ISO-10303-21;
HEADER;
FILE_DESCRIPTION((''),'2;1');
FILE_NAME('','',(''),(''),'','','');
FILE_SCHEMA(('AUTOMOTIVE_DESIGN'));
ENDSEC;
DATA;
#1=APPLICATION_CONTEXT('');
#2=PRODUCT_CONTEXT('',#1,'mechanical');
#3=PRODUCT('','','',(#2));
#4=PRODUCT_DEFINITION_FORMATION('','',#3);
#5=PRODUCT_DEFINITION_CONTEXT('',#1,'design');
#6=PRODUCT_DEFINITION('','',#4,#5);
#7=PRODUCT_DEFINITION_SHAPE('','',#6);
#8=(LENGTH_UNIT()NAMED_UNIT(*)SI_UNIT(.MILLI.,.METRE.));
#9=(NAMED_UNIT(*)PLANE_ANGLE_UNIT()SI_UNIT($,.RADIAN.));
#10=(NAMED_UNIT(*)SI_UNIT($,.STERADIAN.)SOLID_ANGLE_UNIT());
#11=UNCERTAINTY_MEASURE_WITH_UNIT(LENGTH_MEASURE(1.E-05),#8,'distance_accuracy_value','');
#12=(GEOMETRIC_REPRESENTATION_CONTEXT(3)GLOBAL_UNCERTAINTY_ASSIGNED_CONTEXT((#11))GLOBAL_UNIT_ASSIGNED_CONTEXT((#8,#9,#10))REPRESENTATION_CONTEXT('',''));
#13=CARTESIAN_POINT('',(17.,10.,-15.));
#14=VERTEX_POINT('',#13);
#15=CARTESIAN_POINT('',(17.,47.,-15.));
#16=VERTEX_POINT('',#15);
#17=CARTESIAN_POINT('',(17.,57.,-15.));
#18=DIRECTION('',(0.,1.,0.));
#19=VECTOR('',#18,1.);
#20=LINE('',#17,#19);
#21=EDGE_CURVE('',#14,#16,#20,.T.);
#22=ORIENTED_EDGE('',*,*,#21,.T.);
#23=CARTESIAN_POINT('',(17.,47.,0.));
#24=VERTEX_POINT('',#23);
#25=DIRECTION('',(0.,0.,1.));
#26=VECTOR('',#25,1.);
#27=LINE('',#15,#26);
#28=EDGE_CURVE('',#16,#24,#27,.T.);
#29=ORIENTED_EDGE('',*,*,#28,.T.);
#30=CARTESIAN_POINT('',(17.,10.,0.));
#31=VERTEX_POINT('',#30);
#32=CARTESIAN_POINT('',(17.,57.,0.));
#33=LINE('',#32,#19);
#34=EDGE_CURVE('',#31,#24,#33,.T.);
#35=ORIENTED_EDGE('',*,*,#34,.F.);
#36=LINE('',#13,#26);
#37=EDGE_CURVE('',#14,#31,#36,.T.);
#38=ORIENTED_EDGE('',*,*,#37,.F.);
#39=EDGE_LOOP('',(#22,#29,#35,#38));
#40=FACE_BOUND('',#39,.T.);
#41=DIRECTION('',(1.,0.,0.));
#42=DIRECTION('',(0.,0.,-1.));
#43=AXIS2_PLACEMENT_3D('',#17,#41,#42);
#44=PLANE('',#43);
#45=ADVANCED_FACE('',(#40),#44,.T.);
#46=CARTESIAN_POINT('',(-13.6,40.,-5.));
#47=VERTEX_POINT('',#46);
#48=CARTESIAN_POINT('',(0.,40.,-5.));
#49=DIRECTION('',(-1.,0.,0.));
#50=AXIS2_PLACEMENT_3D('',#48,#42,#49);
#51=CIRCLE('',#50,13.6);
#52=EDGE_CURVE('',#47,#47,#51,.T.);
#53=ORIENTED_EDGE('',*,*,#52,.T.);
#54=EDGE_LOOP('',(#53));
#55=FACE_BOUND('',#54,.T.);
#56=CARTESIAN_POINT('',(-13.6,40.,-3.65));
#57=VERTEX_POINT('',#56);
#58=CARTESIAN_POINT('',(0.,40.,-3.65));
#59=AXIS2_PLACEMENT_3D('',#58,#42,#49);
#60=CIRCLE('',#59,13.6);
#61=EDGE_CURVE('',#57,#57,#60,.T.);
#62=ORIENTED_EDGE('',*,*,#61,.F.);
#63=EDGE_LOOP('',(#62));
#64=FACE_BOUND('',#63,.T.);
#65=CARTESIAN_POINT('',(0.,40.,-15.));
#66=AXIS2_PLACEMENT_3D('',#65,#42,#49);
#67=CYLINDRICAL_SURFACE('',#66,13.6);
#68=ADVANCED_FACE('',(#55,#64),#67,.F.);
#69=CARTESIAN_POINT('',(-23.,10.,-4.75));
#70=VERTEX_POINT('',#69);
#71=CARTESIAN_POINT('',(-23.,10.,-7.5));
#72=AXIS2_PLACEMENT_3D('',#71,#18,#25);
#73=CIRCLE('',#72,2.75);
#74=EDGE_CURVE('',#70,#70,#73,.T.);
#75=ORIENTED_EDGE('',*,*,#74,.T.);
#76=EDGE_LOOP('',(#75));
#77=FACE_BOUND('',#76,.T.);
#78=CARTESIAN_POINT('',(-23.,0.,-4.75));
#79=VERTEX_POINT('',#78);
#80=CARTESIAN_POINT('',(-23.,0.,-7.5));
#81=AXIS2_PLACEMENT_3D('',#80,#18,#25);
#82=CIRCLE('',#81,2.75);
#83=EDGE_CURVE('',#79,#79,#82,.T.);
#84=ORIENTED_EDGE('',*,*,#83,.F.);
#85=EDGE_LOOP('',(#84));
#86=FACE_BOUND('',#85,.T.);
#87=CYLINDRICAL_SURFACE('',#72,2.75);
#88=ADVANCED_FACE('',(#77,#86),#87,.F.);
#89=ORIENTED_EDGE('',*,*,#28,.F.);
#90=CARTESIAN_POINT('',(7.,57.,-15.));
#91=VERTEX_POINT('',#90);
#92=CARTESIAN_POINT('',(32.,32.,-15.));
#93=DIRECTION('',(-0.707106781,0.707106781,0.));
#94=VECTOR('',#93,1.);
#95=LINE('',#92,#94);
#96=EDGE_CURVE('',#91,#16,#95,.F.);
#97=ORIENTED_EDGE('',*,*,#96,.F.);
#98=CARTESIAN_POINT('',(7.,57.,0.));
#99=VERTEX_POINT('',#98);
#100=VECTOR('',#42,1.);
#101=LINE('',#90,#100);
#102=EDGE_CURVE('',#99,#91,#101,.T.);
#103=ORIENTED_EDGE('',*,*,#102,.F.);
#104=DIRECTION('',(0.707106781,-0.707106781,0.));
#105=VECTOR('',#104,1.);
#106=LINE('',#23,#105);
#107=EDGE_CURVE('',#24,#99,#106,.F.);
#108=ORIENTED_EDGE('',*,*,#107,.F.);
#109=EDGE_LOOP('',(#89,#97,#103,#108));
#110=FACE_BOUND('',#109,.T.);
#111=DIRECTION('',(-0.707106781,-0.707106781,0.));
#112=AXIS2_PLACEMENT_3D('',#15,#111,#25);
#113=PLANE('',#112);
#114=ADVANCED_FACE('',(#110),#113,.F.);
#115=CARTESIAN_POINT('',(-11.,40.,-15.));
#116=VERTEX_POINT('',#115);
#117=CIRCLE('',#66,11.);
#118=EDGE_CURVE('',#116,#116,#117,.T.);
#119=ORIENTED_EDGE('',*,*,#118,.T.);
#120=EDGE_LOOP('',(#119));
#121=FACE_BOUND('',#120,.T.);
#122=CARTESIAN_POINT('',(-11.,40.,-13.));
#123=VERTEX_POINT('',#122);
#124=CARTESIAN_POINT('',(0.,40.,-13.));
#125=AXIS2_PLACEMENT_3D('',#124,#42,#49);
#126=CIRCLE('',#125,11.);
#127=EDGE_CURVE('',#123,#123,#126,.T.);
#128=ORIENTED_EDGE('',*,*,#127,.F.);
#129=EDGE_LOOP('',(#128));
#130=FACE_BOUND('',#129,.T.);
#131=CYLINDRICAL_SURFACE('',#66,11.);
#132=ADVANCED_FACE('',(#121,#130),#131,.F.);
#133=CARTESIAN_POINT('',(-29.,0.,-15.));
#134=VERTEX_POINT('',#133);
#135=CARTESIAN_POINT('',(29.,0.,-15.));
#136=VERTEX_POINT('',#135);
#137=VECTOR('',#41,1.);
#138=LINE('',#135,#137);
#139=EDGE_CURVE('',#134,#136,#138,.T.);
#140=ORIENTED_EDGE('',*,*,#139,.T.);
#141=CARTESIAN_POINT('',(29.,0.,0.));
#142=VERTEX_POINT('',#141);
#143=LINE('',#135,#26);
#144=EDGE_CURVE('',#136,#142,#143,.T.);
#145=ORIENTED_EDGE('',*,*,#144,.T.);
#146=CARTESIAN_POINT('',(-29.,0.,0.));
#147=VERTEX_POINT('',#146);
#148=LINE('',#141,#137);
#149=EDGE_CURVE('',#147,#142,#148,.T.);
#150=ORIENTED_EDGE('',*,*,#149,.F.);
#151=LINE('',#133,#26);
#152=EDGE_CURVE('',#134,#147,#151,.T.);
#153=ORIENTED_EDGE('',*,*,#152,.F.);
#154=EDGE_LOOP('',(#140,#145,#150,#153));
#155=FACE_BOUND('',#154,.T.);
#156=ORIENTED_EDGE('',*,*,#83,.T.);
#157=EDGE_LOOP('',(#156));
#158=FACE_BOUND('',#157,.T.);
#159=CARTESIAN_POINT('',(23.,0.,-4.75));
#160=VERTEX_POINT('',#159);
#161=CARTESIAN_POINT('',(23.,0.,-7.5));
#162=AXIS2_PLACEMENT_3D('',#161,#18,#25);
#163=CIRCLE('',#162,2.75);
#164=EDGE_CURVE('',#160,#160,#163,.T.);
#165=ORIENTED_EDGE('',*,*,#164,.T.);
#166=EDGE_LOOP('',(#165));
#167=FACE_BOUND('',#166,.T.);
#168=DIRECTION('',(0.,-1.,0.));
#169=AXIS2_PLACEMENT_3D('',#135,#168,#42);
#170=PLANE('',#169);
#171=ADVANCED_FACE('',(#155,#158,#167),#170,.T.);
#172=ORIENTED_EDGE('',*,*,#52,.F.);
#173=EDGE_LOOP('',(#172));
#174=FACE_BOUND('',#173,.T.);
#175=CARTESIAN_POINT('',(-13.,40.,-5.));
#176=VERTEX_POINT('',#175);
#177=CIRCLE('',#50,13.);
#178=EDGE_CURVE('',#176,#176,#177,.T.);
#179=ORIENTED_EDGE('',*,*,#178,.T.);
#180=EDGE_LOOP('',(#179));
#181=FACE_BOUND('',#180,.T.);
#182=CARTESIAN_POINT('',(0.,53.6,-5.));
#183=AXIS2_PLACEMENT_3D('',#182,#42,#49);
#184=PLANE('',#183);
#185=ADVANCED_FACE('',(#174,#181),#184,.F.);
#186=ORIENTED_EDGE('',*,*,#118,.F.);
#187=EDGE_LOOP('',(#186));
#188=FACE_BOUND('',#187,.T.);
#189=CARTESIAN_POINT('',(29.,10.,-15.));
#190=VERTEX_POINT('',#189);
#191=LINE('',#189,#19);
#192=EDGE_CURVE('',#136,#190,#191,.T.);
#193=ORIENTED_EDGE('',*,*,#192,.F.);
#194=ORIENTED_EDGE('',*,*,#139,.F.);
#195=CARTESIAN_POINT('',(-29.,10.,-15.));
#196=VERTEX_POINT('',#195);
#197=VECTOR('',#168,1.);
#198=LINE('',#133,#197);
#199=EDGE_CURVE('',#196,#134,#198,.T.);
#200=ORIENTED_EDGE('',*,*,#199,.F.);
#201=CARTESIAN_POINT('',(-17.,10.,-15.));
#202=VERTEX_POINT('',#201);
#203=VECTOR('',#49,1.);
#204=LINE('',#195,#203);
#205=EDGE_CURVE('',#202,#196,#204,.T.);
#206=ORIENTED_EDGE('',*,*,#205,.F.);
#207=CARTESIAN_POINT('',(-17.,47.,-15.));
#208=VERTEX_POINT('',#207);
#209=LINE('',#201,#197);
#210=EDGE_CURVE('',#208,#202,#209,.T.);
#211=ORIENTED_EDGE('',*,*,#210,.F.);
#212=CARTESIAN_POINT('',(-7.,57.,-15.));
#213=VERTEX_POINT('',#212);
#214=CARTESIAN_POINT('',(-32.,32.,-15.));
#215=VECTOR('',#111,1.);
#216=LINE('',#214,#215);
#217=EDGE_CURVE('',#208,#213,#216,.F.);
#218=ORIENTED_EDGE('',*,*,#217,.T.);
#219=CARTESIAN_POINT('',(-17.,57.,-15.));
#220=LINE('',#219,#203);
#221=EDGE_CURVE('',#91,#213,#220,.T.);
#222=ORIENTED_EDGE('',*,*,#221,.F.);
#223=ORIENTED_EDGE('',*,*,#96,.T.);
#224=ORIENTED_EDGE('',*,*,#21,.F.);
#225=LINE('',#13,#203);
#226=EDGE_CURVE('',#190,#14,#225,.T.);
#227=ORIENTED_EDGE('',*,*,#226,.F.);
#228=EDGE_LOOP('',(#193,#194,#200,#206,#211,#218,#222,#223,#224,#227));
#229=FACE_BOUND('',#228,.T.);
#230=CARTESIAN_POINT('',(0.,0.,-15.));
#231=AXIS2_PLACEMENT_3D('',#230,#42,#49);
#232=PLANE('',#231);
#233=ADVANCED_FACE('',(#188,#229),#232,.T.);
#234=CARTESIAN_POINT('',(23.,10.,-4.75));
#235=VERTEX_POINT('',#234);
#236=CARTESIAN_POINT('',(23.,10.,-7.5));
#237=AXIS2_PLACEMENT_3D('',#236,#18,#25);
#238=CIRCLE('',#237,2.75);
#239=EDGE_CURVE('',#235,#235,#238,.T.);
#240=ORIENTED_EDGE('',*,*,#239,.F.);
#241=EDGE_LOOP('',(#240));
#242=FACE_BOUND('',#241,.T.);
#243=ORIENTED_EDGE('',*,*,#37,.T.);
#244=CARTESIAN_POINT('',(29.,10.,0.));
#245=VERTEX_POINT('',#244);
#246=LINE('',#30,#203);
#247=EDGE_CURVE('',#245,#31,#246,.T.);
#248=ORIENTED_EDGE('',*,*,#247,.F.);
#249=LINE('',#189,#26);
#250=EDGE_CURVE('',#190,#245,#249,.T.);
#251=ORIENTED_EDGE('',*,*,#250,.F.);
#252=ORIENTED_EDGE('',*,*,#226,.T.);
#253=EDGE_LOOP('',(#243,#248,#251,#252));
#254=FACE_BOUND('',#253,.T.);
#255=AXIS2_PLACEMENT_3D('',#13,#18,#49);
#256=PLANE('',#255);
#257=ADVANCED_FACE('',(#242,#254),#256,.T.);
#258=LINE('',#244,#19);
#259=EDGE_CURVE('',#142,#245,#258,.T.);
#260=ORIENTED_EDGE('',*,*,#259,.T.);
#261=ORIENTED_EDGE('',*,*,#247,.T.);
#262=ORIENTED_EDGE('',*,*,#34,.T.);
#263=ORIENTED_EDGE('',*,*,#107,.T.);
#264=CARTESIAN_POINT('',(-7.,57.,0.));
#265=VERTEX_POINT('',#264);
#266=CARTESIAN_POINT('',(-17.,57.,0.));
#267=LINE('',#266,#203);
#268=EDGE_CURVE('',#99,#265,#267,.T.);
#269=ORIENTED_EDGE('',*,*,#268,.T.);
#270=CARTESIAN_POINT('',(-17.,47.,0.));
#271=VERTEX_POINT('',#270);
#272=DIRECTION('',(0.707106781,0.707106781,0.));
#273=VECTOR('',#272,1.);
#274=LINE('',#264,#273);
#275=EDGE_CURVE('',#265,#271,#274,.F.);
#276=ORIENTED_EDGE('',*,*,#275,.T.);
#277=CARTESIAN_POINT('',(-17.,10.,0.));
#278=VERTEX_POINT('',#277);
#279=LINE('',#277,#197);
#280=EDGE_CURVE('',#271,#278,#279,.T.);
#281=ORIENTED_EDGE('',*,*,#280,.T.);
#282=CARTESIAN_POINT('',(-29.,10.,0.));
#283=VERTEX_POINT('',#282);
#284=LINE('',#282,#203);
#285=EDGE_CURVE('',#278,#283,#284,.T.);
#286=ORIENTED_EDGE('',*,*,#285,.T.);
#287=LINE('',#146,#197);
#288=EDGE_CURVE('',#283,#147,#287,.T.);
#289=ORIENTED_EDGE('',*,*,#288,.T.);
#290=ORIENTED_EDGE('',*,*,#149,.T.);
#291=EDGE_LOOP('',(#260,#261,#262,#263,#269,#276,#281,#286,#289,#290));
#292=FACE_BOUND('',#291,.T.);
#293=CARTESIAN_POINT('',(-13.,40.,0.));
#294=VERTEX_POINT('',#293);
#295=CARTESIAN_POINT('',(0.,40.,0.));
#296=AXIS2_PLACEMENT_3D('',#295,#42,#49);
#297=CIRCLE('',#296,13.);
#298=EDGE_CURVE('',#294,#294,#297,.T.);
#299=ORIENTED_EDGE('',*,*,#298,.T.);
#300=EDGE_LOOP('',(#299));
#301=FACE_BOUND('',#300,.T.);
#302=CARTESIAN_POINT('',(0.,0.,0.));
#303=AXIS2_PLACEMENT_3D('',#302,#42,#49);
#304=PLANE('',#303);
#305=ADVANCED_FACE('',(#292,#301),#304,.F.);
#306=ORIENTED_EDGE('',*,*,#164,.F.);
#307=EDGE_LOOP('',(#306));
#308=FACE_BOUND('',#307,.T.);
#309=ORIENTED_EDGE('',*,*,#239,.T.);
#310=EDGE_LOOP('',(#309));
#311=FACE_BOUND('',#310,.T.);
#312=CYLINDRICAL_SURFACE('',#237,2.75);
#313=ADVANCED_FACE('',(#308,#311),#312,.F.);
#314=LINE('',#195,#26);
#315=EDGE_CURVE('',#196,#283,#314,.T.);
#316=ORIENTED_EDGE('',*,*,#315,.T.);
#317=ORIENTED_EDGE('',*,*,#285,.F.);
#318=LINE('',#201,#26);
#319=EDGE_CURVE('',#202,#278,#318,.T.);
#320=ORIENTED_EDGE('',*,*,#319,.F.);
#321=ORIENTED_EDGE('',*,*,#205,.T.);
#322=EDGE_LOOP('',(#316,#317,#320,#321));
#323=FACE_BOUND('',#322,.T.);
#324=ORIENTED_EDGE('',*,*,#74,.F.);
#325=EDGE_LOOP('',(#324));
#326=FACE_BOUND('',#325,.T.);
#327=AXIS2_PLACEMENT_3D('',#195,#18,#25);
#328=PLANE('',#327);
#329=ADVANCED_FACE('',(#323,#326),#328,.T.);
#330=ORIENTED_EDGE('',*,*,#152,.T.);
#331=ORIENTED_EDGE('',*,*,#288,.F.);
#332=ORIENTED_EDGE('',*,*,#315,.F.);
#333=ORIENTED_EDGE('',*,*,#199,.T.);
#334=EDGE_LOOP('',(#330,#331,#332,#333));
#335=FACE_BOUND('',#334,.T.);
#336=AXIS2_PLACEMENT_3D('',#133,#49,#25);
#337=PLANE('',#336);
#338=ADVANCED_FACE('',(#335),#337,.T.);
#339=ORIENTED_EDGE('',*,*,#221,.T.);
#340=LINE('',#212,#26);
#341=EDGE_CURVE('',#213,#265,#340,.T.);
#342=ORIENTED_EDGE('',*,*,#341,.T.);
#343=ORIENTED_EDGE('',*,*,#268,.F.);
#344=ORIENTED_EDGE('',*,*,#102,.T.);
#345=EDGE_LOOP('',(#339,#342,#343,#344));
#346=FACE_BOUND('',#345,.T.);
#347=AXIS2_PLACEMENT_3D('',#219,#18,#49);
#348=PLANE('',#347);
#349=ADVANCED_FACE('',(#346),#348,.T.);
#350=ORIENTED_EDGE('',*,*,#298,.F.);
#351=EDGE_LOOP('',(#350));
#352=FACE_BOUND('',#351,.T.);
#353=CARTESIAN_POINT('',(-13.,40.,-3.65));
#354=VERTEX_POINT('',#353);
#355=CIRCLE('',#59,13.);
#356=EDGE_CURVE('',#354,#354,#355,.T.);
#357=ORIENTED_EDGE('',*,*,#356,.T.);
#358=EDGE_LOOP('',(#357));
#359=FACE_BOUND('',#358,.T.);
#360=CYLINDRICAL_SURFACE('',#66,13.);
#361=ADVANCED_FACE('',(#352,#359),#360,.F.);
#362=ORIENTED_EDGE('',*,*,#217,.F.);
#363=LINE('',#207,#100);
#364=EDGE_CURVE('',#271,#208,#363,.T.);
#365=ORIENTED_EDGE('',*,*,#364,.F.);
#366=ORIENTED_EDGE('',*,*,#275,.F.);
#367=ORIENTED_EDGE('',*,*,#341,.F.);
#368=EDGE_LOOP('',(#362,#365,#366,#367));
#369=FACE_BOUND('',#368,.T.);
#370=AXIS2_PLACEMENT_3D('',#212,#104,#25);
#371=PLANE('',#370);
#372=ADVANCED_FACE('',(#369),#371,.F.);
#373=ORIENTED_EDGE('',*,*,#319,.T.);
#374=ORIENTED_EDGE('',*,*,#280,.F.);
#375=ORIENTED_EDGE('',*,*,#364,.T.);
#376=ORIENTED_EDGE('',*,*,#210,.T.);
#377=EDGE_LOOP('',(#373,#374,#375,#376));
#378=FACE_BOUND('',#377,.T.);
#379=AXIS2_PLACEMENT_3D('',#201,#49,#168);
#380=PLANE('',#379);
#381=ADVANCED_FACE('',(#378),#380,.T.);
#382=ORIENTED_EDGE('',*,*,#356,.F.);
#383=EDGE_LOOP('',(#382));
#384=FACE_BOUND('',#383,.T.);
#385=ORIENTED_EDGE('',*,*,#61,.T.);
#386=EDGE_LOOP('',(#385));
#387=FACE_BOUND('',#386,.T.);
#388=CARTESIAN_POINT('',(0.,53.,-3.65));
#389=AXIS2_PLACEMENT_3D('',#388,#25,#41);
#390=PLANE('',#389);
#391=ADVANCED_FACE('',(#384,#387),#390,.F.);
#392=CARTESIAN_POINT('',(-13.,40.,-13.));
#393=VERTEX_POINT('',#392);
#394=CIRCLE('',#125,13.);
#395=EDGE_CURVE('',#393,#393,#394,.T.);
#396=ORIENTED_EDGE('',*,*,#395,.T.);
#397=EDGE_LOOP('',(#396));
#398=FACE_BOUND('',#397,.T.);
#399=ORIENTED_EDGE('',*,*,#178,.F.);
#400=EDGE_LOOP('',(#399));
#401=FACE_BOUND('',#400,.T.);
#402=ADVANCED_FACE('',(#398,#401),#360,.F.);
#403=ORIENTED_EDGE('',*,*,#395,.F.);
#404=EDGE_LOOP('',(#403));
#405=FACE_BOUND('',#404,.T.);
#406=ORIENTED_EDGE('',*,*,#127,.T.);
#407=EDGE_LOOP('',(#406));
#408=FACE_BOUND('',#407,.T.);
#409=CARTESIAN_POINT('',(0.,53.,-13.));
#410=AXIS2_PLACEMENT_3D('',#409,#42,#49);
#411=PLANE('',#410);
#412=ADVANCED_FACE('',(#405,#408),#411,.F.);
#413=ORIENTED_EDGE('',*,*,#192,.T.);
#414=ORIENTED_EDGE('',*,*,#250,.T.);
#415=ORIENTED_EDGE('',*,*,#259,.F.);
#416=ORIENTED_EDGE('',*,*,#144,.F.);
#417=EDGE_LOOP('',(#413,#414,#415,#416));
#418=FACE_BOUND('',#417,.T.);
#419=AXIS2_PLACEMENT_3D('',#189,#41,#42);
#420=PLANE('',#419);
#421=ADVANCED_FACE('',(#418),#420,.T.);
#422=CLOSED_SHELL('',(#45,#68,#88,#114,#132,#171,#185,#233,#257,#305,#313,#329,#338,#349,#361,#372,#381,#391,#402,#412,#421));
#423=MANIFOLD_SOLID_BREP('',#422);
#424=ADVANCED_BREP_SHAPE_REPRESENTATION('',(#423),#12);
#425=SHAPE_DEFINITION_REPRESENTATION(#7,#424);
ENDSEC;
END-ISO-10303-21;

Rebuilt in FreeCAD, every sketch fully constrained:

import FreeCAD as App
import Part
import Sketcher
from FreeCAD import Vector
Q = App.Units.Quantity


def edges_at(feature, points):
    """Names of the edges that pass closest to the given points."""
    edges = feature.Shape.Edges
    near = lambda p: min(range(len(edges)), key=lambda i: edges[i].distToShape(Part.Vertex(*p))[0])
    return sorted({f"Edge{near(p) + 1}" for p in points})


def add_polygon(sketch, points):
    """Adds a closed chain of lines whose ends are joined by coincident constraints."""
    first, n = sketch.GeometryCount, len(points)
    for a, b in zip(points, points[1:] + points[:1]):
        sketch.addGeometry(Part.LineSegment(App.Vector(*a, 0), App.Vector(*b, 0)), False)
    for i in range(n):
        sketch.addConstraint(Sketcher.Constraint("Coincident", first + i, 2, first + (i + 1) % n, 1))

doc = App.newDocument("Part")
body = doc.addObject("PartDesign::Body", "Body")

# Sketch on XY plane
sketch1 = body.newObject("Sketcher::SketchObject", "Sketch")
sketch1.AttachmentSupport = (doc.getObject("XY_Plane"), [""])
sketch1.MapMode = "FlatFace"
add_polygon(sketch1, [(17, 57), (-17, 57), (-17, 10), (-29, 10), (-29, 0), (29, 0), (29, 10), (17, 10)])  # lines 0-7
sketch1.addConstraint([
    Sketcher.Constraint("Horizontal", 0),
    Sketcher.Constraint("Vertical", 1),
    Sketcher.Constraint("Horizontal", 2),
    Sketcher.Constraint("Vertical", 3),
    Sketcher.Constraint("Horizontal", 4),
    Sketcher.Constraint("Vertical", 5),
    Sketcher.Constraint("Horizontal", 6),
    Sketcher.Constraint("Vertical", 7),
    Sketcher.Constraint("Symmetric", 3, 2, 4, 2, -1, 1),
    Sketcher.Constraint("Symmetric", 1, 2, 6, 2, -2),
    Sketcher.Constraint("DistanceX", 0, 2, 0, 1, Q("34 mm")),
    Sketcher.Constraint("DistanceX", 2, 2, 2, 1, Q("12 mm")),
    Sketcher.Constraint("DistanceY", 1, 2, 1, 1, Q("47 mm")),
    Sketcher.Constraint("DistanceY", 3, 2, 3, 1, Q("10 mm")),
])
pad1 = body.newObject("PartDesign::Pad", "Pad")
pad1.Profile = sketch1
pad1.Length = 15
pad1.Reversed = True

# Sketch on YZ plane
sketch2 = body.newObject("Sketcher::SketchObject", "Sketch001")
sketch2.AttachmentSupport = (doc.getObject("YZ_Plane"), [""])
sketch2.MapMode = "FlatFace"
add_polygon(sketch2, [(53.6, -3.6), (53, -3.6), (53, 0), (40, 0), (40, -15), (51, -15), (51, -13), (53, -13), (53, -5), (53.6, -5)])  # lines 0-9
sketch2.addGeometry(Part.LineSegment(Vector(40, -15, 0), Vector(40, 0, 0)), True)  # axis
sketch2.addConstraint([
    Sketcher.Constraint("Horizontal", 0),
    Sketcher.Constraint("Vertical", 1),
    Sketcher.Constraint("Horizontal", 2),
    Sketcher.Constraint("Vertical", 3),
    Sketcher.Constraint("Horizontal", 4),
    Sketcher.Constraint("Vertical", 5),
    Sketcher.Constraint("Horizontal", 6),
    Sketcher.Constraint("Vertical", 7),
    Sketcher.Constraint("Horizontal", 8),
    Sketcher.Constraint("Vertical", 9),
    Sketcher.Constraint("Vertical", 10),
    Sketcher.Constraint("Coincident", 10, 1, 3, 2),
    Sketcher.Constraint("PointOnObject", 1, 2, -1),
    Sketcher.Constraint("PointOnObject", 10, 2, -1),
    Sketcher.Constraint("Vertical", 1, 2, 6, 2),
    Sketcher.Constraint("Equal", 6, 5),
    Sketcher.Constraint("DistanceX", 2, 2, 2, 1, Q("13 mm")),
    Sketcher.Constraint("DistanceX", 4, 1, 4, 2, Q("11 mm")),
    Sketcher.Constraint("DistanceY", 3, 2, 3, 1, Q("15 mm")),
    Sketcher.Constraint("DistanceY", 7, 1, 7, 2, Q("8 mm")),
    Sketcher.Constraint("DistanceX", 0, 2, 0, 1, Q("0.6 mm")),
    Sketcher.Constraint("DistanceX", -1, 1, 0, 2, Q("53 mm")),
    Sketcher.Constraint("DistanceY", 1, 1, 1, 2, Q("3.65 mm")),
])
groove = body.newObject("PartDesign::Groove", "Groove")
groove.Profile = sketch2
groove.ReferenceAxis = (sketch2, ["Axis0"])
groove.Angle = 360

# Sketch on XZ plane
sketch3 = body.newObject("Sketcher::SketchObject", "Sketch002")
sketch3.AttachmentSupport = (doc.getObject("XZ_Plane"), [""])
sketch3.MapMode = "FlatFace"
sketch3.AttachmentOffset = App.Placement(Vector(0, 0, -10), App.Rotation())
sketch3.addGeometry([
    Part.Circle(Vector(-23, -7.5, 0), Vector(0, 0, 1), 2.8),
    Part.Circle(Vector(23, -7.5, 0), Vector(0, 0, 1), 2.8),
], False)
sketch3.addConstraint([
    Sketcher.Constraint("Equal", 0, 1),
    Sketcher.Constraint("Symmetric", 0, 3, 1, 3, -2),
    Sketcher.Constraint("Diameter", 0, Q("5.5 mm")),
    Sketcher.Constraint("DistanceX", 0, 3, -1, 1, Q("23 mm")),
    Sketcher.Constraint("DistanceY", 0, 3, -1, 1, Q("7.5 mm")),
])
doc.recompute()
hole = body.newObject("PartDesign::Hole", "Hole")
hole.Profile = sketch3
hole.ThreadType = "None"
hole.Diameter = 5.5
hole.DepthType = "ThroughAll"
hole.Reversed = True
doc.recompute()

chamfer = body.newObject("PartDesign::Chamfer", "Chamfer")
chamfer.Base = (hole, edges_at(hole, [(-17, 57, -7.5), (17, 57, -7.5)]))
chamfer.Size = 10

doc.recompute()
